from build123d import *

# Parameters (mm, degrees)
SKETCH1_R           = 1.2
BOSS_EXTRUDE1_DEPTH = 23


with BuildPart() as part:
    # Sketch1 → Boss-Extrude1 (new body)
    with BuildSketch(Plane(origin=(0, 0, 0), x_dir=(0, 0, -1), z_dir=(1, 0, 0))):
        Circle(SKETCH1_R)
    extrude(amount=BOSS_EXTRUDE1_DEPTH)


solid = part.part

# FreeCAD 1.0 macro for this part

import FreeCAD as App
import Part
import Sketcher
Q = App.Units.Quantity

doc = App.newDocument("Part")
body = doc.addObject("PartDesign::Body", "Body")

sketch1 = body.newObject("Sketcher::SketchObject", "Sketch")
sketch1.AttachmentSupport = (doc.getObject("YZ_Plane"), [""])
sketch1.MapMode = "FlatFace"
sketch1.addGeometry(Part.Circle(App.Vector(0, 0, 0), App.Vector(0, 0, 1), 1.2), False)
sketch1.addConstraint([
    Sketcher.Constraint("Coincident", 0, 3, -1, 1),
    Sketcher.Constraint("Diameter", 0, Q("2.4 mm")),
])
pad1 = body.newObject("PartDesign::Pad", "Pad")
pad1.Profile = sketch1
pad1.Length = 23

doc.recompute()
